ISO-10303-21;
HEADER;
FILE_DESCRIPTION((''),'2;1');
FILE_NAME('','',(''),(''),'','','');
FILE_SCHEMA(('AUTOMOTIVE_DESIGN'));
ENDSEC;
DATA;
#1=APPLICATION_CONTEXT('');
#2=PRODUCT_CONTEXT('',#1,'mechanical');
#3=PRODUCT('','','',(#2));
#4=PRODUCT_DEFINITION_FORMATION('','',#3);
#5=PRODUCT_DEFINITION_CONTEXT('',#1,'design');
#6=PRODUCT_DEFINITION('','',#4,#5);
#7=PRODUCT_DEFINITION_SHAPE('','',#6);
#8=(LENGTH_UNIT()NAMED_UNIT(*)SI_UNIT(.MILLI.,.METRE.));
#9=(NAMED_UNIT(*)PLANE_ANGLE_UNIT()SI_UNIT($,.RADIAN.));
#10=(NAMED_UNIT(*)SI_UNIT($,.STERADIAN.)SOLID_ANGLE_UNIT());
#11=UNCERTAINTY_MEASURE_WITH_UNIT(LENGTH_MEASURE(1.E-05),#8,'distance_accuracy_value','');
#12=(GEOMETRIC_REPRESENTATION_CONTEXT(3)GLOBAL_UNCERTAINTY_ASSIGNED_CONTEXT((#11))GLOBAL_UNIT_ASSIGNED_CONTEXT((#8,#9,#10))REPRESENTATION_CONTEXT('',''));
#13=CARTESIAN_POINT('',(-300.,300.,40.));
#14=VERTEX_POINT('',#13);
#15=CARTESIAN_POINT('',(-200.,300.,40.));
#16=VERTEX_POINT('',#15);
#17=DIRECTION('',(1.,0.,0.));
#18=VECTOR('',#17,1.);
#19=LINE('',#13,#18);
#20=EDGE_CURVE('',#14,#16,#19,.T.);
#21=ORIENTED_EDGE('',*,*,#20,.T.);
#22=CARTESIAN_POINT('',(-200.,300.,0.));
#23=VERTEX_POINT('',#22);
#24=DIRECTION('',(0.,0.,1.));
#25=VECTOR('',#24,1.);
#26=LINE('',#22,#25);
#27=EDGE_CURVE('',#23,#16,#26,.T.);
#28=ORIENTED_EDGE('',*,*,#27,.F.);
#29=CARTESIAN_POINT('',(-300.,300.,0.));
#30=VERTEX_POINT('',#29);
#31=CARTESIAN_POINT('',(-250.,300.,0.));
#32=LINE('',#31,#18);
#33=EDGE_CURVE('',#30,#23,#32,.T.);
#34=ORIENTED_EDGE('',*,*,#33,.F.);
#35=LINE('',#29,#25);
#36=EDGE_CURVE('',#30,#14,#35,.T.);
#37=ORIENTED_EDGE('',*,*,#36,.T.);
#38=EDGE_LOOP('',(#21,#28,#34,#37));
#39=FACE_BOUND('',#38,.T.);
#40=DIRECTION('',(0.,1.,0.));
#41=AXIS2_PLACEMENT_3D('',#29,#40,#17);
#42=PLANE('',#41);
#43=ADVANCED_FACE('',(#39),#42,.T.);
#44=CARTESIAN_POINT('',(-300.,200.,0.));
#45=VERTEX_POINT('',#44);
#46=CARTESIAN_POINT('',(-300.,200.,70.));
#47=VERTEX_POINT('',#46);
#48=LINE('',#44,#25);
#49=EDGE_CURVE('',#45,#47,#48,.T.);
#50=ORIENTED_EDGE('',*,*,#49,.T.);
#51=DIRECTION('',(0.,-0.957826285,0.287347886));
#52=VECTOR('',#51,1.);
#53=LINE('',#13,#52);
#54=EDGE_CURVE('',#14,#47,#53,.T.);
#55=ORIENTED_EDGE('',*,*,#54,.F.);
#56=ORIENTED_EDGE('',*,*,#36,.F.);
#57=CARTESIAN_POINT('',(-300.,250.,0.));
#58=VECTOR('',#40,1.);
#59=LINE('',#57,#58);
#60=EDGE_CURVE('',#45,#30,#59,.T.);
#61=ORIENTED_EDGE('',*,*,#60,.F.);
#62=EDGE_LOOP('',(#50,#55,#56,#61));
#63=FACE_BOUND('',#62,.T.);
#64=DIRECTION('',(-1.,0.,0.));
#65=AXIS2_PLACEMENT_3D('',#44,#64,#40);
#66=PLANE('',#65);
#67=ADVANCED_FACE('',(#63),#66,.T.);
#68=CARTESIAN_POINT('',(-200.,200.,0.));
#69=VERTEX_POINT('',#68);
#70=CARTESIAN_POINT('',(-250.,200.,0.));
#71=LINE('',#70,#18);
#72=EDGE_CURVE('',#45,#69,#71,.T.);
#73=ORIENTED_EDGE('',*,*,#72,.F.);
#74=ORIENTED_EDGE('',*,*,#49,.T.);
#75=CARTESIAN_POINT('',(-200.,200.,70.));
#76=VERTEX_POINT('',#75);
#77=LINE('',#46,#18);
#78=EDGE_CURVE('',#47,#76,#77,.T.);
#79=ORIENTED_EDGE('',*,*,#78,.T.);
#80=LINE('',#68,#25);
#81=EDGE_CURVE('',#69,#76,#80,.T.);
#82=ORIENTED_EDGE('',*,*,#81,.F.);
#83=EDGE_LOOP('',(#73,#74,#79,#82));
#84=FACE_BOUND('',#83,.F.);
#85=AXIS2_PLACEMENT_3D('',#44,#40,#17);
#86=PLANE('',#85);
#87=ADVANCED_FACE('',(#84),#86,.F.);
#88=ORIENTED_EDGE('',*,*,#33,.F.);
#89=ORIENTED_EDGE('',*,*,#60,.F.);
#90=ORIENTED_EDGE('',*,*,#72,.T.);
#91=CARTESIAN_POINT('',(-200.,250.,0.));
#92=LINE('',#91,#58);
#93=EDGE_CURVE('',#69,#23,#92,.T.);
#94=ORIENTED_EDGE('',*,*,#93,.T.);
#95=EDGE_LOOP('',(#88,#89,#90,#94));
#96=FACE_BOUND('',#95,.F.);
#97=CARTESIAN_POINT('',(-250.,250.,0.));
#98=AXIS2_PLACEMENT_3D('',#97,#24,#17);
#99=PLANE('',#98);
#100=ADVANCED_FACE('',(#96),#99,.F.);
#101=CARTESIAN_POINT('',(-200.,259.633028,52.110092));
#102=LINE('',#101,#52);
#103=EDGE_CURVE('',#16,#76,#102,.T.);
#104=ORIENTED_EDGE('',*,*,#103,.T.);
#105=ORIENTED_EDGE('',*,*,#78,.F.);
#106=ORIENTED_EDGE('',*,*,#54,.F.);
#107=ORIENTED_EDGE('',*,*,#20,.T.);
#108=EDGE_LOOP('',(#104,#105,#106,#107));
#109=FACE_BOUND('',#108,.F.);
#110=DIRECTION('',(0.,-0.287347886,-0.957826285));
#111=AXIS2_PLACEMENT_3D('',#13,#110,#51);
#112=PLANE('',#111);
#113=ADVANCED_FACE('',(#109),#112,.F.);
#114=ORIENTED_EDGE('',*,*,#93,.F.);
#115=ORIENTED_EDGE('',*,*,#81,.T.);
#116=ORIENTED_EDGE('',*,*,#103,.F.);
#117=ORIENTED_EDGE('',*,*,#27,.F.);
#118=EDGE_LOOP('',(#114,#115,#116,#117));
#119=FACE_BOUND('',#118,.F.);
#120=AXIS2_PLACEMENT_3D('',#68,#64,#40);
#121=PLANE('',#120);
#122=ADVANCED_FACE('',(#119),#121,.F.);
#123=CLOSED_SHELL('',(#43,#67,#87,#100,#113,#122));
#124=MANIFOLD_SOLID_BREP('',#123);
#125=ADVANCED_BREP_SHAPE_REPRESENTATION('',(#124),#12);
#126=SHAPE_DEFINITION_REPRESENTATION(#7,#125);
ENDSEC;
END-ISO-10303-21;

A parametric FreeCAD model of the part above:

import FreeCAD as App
import Part
import Sketcher

V = App.Vector

doc = App.newDocument("Part")
params = doc.addObject("Spreadsheet::Sheet", "Params")
for row, (alias, value) in enumerate([
    ("sketch1_width", "100 mm"),
    ("pad1_length", "100 mm"),
    ("sketch2_width", "100 mm"),
    ("sketch2_height", "60 mm"),
    ("sketch2_height2", "30 mm"),
    ("pocket1_length", "154 mm"),
], start=1):
    params.set(f"A{row}", alias)
    params.set(f"B{row}", "=" + value)
    params.setAlias(f"B{row}", alias)

body = doc.addObject("PartDesign::Body", "Body")

# Sketch on XY plane
sketch1 = body.newObject("Sketcher::SketchObject", "Sketch")
sketch1.AttachmentSupport = (doc.getObject("XY_Plane"), [""])
sketch1.MapMode = "FlatFace"
sketch1.addGeometry([
    Part.LineSegment(V(-300, 300, 0), V(-300, 200, 0)),
    Part.LineSegment(V(-300, 200, 0), V(-200, 200, 0)),
    Part.LineSegment(V(-200, 200, 0), V(-200, 300, 0)),
    Part.LineSegment(V(-200, 300, 0), V(-300, 300, 0)),
], False)
sketch1.addConstraint([
    Sketcher.Constraint("Coincident", 0, 2, 1, 1),
    Sketcher.Constraint("Coincident", 1, 2, 2, 1),
    Sketcher.Constraint("Coincident", 2, 2, 3, 1),
    Sketcher.Constraint("Coincident", 3, 2, 0, 1),
    Sketcher.Constraint("Vertical", 0),
    Sketcher.Constraint("Horizontal", 1),
    Sketcher.Constraint("Vertical", 2),
    Sketcher.Constraint("Horizontal", 3),
    Sketcher.Constraint("Equal", 3, 0),
    Sketcher.Constraint("DistanceX", 1, 1, 1, 2, 100.0),
    Sketcher.Constraint("DistanceX", 0, 2, -1, 1, 300.0),
    Sketcher.Constraint("DistanceY", -1, 1, 0, 2, 200.0),
])
sketch1.setExpression("Constraints[9]", "Params.sketch1_width")
pad1 = body.newObject("PartDesign::Pad", "Pad")
pad1.Profile = sketch1
pad1.setExpression("Length", "Params.pad1_length")

# Sketch on YZ plane
sketch2 = body.newObject("Sketcher::SketchObject", "Sketch001")
sketch2.AttachmentSupport = (doc.getObject("YZ_Plane"), [""])
sketch2.MapMode = "FlatFace"
sketch2.AttachmentOffset = App.Placement(V(0, 0, -300), App.Rotation())
sketch2.addGeometry([
    Part.LineSegment(V(300, 100, 0), V(300, 40, 0)),
    Part.LineSegment(V(300, 40, 0), V(200, 70, 0)),
    Part.LineSegment(V(200, 70, 0), V(200, 100, 0)),
    Part.LineSegment(V(200, 100, 0), V(300, 100, 0)),
], False)
sketch2.addConstraint([
    Sketcher.Constraint("Coincident", 0, 2, 1, 1),
    Sketcher.Constraint("Coincident", 1, 2, 2, 1),
    Sketcher.Constraint("Coincident", 2, 2, 3, 1),
    Sketcher.Constraint("Coincident", 3, 2, 0, 1),
    Sketcher.Constraint("Vertical", 0),
    Sketcher.Constraint("Vertical", 2),
    Sketcher.Constraint("Horizontal", 3),
    Sketcher.Constraint("DistanceX", 3, 1, 3, 2, 100.0),
    Sketcher.Constraint("DistanceY", 0, 2, 0, 1, 60.0),
    Sketcher.Constraint("DistanceY", 2, 1, 2, 2, 30.0),
    Sketcher.Constraint("DistanceX", -1, 1, 0, 2, 300.0),
    Sketcher.Constraint("DistanceY", -1, 1, 0, 2, 40.0),
])
sketch2.setExpression("Constraints[7]", "Params.sketch2_width")
sketch2.setExpression("Constraints[8]", "Params.sketch2_height")
sketch2.setExpression("Constraints[9]", "Params.sketch2_height2")
pocket1 = body.newObject("PartDesign::Pocket", "Pocket")
pocket1.Profile = sketch2
pocket1.setExpression("Length", "Params.pocket1_length")
pocket1.Reversed = True

doc.recompute()
